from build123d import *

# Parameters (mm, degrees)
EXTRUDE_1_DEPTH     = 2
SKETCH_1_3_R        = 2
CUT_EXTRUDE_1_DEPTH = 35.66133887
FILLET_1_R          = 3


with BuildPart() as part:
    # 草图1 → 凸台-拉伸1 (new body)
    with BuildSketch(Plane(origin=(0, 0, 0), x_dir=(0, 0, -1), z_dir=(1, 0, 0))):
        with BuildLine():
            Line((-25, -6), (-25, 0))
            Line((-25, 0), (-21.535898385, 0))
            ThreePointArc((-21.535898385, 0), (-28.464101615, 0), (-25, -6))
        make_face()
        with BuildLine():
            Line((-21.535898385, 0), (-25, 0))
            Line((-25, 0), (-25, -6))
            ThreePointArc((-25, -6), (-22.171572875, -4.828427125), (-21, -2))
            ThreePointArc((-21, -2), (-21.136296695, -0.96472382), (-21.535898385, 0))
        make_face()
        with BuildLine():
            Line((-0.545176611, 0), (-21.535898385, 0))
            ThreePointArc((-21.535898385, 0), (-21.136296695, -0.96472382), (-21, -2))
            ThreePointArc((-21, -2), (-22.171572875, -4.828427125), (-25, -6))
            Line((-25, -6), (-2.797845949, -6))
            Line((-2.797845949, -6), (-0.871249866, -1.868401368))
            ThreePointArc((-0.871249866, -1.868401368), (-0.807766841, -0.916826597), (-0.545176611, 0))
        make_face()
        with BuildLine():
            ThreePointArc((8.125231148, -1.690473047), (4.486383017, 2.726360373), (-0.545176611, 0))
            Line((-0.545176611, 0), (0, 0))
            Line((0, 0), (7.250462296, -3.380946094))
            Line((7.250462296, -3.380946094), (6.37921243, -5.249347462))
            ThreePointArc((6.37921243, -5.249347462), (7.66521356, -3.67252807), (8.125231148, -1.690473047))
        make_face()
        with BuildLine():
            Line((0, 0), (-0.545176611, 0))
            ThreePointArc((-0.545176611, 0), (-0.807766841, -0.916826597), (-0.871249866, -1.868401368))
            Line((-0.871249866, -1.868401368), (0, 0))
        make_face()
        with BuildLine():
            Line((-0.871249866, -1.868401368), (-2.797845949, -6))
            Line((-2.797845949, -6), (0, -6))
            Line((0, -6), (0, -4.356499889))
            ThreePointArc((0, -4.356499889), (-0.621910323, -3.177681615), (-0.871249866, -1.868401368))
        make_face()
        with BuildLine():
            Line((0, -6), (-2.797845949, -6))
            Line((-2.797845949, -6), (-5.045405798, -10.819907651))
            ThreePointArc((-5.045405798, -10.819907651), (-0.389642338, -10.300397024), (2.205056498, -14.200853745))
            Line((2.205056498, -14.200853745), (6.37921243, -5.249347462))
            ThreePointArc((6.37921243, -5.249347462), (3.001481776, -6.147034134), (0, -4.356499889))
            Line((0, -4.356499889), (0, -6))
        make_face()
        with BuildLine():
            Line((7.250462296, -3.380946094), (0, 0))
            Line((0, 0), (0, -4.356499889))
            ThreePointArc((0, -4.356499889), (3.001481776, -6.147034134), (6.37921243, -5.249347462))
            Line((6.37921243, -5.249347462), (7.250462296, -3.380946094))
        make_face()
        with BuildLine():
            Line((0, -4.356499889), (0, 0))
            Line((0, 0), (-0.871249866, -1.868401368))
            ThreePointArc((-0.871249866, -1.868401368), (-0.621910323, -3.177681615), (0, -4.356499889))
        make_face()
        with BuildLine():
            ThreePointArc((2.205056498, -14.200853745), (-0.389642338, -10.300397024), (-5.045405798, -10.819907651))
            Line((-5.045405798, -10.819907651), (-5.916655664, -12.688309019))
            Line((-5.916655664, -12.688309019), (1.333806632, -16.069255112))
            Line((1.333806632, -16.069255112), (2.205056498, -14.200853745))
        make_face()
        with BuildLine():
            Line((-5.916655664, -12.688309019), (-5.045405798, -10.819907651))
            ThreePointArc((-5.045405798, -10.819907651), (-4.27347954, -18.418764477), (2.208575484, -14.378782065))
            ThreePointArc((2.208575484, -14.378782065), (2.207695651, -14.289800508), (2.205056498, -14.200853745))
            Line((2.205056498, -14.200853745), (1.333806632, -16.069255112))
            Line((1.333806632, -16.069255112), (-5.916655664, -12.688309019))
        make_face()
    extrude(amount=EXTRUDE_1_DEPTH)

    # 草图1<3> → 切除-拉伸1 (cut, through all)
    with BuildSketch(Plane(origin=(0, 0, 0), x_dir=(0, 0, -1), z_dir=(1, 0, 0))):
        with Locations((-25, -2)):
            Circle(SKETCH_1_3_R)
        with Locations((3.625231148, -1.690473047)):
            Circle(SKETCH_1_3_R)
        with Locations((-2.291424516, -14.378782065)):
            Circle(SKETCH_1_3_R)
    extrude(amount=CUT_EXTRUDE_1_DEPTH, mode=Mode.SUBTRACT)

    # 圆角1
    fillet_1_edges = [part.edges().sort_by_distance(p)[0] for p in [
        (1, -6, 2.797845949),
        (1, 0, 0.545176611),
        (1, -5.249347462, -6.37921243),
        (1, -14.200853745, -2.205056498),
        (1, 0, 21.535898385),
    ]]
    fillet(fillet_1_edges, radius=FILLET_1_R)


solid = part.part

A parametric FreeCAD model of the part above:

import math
import FreeCAD as App
import Part
import Sketcher
Q = App.Units.Quantity


def edges_at(feature, points):
    """Names of the edges that pass closest to the given points."""
    edges = feature.Shape.Edges
    near = lambda p: min(range(len(edges)), key=lambda i: edges[i].distToShape(Part.Vertex(*p))[0])
    return sorted({f"Edge{near(p) + 1}" for p in points})

doc = App.newDocument("Part")
body = doc.addObject("PartDesign::Body", "Body")

# Sketch on YZ plane
sketch1 = body.newObject("Sketcher::SketchObject", "Sketch")
sketch1.AttachmentSupport = (doc.getObject("YZ_Plane"), [""])
sketch1.MapMode = "FlatFace"
sketch1.addGeometry([
    Part.LineSegment(App.Vector(-14.2, -2.21, 0), App.Vector(-5.25, -6.38, 0)),  # 0
    Part.ArcOfCircle(Part.Circle(App.Vector(-1.69, -3.63, 0), App.Vector(0, 0, 1), 4.5), math.radians(-142), math.radians(-90)),  # 1
    Part.ArcOfCircle(Part.Circle(App.Vector(-1.69, -3.63, 0), App.Vector(0, 0, 1), 4.5), math.radians(-90), math.radians(68)),  # 2
    Part.LineSegment(App.Vector(0, 0.55, 0), App.Vector(0, 21.54, 0)),  # 3
    Part.ArcOfCircle(Part.Circle(App.Vector(-2, 25, 0), App.Vector(0, 0, 1), 4), math.radians(-60), math.radians(180)),  # 4
    Part.LineSegment(App.Vector(-6, 25, 0), App.Vector(-6, 2.8, 0)),  # 5
    Part.LineSegment(App.Vector(-6, 2.8, 0), App.Vector(-10.82, 5.05, 0)),  # 6
    Part.ArcOfCircle(Part.Circle(App.Vector(-14.38, 2.29, 0), App.Vector(0, 0, 1), 4.5), math.radians(38), math.radians(270)),  # 7
    Part.ArcOfCircle(Part.Circle(App.Vector(-14.38, 2.29, 0), App.Vector(0, 0, 1), 4.5), math.radians(-90), math.radians(-87.73)),  # 8
], False)
sketch1.addConstraint([
    Sketcher.Constraint("Coincident", 0, 2, 1, 1),
    Sketcher.Constraint("Tangent", 1, 2, 2, 1),
    Sketcher.Constraint("Coincident", 2, 2, 3, 1),
    Sketcher.Constraint("Coincident", 3, 2, 4, 1),
    Sketcher.Constraint("Tangent", 4, 2, 5, 1),
    Sketcher.Constraint("Coincident", 5, 2, 6, 1),
    Sketcher.Constraint("Coincident", 6, 2, 7, 1),
    Sketcher.Constraint("Tangent", 7, 2, 8, 1),
    Sketcher.Constraint("Coincident", 8, 2, 0, 1),
    Sketcher.Constraint("Vertical", 3),
    Sketcher.Constraint("Vertical", 5),
    Sketcher.Constraint("Equal", 1, 2),
    Sketcher.Constraint("Equal", 2, 7),
    Sketcher.Constraint("PointOnObject", 2, 2, -2),
    Sketcher.Constraint("Parallel", 0, 6),
    Sketcher.Constraint("Vertical", 2, 3, 1, 2),
    Sketcher.Constraint("Vertical", 8, 3, 7, 2),
    Sketcher.Constraint("Radius", 4, Q("4 mm")),
    Sketcher.Constraint("Radius", 1, Q("4.5 mm")),
    Sketcher.Constraint("Angle", 0, Q("-25 deg")),
    Sketcher.Constraint("DistanceX", 4, 3, -1, 1, Q("2 mm")),
    Sketcher.Constraint("DistanceY", -1, 1, 4, 3, Q("25 mm")),
    Sketcher.Constraint("Radius", 8, Q("4.500002 mm")),
    Sketcher.Constraint("DistanceY", 3, 1, 3, 2, Q("20.990722 mm")),
    Sketcher.Constraint("Distance", 6, Q("5.31818 mm")),
    Sketcher.Constraint("DistanceY", 5, 2, 5, 1, Q("22.202154 mm")),
    Sketcher.Constraint("DistanceY", 1, 3, -1, 1, Q("3.625231 mm")),
    Sketcher.Constraint("DistanceX", 7, 3, 1, 3, Q("12.688309 mm")),
    Sketcher.Constraint("DistanceY", 0, 2, 1, 3, Q("2.753981 mm")),
])
pad1 = body.newObject("PartDesign::Pad", "Pad")
pad1.Profile = sketch1
pad1.Length = 2

# Sketch on YZ plane
sketch2 = body.newObject("Sketcher::SketchObject", "Sketch001")
sketch2.AttachmentSupport = (doc.getObject("YZ_Plane"), [""])
sketch2.MapMode = "FlatFace"
sketch2.addGeometry([
    Part.Circle(App.Vector(-2, 25, 0), App.Vector(0, 0, 1), 2),
    Part.Circle(App.Vector(-1.7, -3.6, 0), App.Vector(0, 0, 1), 2),
    Part.Circle(App.Vector(-14.4, 2.3, 0), App.Vector(0, 0, 1), 2),
], False)
sketch2.addConstraint([
    Sketcher.Constraint("Equal", 0, 1),
    Sketcher.Constraint("Equal", 1, 2),
    Sketcher.Constraint("Diameter", 0, Q("4 mm")),
    Sketcher.Constraint("DistanceX", 0, 3, -1, 1, Q("2 mm")),
    Sketcher.Constraint("DistanceY", -1, 1, 0, 3, Q("25 mm")),
    Sketcher.Constraint("DistanceY", 1, 3, -1, 1, Q("3.625231 mm")),
    Sketcher.Constraint("DistanceX", 2, 3, 1, 3, Q("12.688309 mm")),
    Sketcher.Constraint("DistanceX", 1, 3, -1, 1, Q("1.690473 mm")),
    Sketcher.Constraint("DistanceY", -1, 1, 2, 3, Q("2.291425 mm")),
])
pocket1 = body.newObject("PartDesign::Pocket", "Pocket")
pocket1.Profile = sketch2
pocket1.Type = "ThroughAll"
pocket1.Reversed = True
doc.recompute()

fillet = body.newObject("PartDesign::Fillet", "Fillet")
fillet.Base = (pocket1, edges_at(pocket1, [
    (1, -6, 2.798),
    (1, 0, 0.545),
    (1, -5.249, -6.379),
    (1, -14.201, -2.205),
    (1, 0, 21.536),
]))
fillet.Radius = 3

doc.recompute()
